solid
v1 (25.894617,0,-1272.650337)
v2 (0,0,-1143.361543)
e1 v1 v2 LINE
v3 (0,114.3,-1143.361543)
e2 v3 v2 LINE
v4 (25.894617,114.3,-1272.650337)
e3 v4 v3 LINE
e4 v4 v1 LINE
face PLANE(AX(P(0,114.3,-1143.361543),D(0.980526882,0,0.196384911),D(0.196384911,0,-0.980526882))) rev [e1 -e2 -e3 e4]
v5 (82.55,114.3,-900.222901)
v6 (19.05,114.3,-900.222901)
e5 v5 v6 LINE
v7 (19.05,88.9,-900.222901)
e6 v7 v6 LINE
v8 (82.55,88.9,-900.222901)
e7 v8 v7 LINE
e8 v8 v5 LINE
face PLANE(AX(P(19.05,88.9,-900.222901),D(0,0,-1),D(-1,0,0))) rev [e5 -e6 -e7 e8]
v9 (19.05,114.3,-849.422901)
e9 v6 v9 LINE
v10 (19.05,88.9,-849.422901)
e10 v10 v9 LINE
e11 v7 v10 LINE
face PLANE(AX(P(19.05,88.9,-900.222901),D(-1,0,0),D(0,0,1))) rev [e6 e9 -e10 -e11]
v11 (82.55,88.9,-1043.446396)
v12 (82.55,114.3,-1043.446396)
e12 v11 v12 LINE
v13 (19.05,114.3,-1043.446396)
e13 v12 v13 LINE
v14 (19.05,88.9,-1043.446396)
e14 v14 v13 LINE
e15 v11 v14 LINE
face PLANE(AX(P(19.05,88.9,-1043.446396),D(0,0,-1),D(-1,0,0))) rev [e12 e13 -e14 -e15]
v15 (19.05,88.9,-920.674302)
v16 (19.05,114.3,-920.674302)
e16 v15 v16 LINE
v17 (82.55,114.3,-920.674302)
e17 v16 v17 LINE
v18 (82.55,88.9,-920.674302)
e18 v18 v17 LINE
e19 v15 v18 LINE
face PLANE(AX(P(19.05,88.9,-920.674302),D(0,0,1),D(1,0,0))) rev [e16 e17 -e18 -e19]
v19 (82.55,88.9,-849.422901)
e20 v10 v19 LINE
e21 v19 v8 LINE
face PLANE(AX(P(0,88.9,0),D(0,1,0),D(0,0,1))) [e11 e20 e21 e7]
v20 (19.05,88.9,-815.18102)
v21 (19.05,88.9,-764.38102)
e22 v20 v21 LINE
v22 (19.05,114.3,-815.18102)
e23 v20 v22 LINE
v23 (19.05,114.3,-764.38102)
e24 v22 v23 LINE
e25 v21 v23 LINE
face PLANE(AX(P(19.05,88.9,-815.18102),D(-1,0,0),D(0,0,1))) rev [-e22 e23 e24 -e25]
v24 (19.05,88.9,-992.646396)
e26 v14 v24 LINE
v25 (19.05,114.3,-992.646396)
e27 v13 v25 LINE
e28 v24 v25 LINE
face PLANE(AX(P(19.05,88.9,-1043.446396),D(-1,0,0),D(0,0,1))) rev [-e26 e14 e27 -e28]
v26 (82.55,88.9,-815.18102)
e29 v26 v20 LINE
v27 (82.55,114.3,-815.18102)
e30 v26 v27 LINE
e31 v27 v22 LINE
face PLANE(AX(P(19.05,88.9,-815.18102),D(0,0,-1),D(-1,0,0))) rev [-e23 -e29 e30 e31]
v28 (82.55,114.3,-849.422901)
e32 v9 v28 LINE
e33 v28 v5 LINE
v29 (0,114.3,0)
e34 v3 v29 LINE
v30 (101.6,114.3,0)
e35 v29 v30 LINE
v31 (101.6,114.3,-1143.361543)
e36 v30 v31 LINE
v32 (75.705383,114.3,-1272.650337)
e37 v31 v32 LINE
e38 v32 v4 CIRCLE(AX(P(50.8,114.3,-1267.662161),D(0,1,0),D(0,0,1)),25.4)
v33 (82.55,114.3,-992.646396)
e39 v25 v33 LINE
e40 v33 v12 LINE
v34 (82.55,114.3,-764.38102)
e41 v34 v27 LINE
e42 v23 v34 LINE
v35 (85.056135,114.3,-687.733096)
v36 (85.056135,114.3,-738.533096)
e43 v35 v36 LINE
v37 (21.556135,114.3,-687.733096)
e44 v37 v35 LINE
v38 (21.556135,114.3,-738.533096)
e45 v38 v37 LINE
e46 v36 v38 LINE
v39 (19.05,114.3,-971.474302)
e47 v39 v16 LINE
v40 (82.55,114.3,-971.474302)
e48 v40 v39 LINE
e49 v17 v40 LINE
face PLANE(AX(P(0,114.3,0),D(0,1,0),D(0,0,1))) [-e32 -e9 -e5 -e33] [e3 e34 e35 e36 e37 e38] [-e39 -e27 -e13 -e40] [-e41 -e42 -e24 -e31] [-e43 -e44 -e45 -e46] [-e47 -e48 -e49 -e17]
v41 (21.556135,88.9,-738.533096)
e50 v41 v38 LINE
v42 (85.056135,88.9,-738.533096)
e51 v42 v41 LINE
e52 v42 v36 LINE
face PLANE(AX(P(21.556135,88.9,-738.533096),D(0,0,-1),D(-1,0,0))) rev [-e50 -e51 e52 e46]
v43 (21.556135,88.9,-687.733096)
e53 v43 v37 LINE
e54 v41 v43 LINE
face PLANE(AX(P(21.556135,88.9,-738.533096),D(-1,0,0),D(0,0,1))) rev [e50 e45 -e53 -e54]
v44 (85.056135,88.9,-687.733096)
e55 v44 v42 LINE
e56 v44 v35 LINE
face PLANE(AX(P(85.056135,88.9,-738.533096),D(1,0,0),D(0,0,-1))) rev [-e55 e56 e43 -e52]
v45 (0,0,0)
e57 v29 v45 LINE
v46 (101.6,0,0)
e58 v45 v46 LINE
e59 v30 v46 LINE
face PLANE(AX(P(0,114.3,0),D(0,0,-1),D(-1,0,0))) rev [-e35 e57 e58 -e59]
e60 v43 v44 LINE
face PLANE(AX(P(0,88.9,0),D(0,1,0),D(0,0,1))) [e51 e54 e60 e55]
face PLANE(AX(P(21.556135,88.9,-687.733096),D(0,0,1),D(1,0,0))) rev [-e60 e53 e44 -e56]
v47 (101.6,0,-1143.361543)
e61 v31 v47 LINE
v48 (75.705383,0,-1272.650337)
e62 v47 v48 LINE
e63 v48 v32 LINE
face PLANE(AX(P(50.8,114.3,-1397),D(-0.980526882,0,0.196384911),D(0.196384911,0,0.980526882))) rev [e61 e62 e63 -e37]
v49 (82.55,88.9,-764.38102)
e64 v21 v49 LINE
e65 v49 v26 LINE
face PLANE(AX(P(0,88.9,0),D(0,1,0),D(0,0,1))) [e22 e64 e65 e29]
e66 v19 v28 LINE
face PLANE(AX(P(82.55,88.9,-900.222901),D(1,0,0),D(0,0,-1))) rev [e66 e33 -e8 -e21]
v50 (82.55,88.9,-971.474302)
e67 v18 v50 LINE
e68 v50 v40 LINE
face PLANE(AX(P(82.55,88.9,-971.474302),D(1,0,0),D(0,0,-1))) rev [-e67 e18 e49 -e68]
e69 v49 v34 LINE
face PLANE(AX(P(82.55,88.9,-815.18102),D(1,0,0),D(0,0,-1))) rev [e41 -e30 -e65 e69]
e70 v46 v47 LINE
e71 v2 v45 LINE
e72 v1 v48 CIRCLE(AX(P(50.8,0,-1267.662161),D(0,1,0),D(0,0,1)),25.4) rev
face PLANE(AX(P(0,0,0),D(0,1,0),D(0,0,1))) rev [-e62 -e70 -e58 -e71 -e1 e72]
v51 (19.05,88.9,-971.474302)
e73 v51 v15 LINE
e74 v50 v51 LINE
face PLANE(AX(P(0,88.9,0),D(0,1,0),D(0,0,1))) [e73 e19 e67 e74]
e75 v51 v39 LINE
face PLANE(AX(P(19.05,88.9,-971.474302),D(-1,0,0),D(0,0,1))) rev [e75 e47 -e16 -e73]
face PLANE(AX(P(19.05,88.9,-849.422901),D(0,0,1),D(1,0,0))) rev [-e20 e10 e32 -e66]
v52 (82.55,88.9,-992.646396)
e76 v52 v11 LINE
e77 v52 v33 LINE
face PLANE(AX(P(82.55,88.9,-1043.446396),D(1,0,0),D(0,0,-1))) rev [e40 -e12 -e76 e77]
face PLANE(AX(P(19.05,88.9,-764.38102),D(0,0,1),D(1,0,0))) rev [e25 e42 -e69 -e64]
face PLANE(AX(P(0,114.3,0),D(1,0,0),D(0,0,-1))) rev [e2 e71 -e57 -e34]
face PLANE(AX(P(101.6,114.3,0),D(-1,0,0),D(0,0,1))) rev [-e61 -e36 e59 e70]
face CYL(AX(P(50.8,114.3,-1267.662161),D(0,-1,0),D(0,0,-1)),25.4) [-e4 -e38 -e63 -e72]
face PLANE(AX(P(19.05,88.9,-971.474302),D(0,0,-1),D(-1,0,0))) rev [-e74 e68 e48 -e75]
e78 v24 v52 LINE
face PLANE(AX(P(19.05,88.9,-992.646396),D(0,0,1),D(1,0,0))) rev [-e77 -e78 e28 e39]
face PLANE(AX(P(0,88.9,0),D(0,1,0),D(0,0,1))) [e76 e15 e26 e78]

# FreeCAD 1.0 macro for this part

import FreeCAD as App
import Part
import Sketcher
Q = App.Units.Quantity


def edges_at(feature, points):
    """Names of the edges that pass closest to the given points."""
    edges = feature.Shape.Edges
    near = lambda p: min(range(len(edges)), key=lambda i: edges[i].distToShape(Part.Vertex(*p))[0])
    return sorted({f"Edge{near(p) + 1}" for p in points})

doc = App.newDocument("Part")
body = doc.addObject("PartDesign::Body", "Body")

sketch1 = body.newObject("Sketcher::SketchObject", "Sketch")
sketch1.AttachmentSupport = (doc.getObject("XZ_Plane"), [""])
sketch1.MapMode = "FlatFace"
sketch1.addGeometry([
    Part.LineSegment(App.Vector(0, -1143, 0), App.Vector(0, 0, 0)),
    Part.LineSegment(App.Vector(0, 0, 0), App.Vector(102, 0, 0)),
    Part.LineSegment(App.Vector(102, 0, 0), App.Vector(102, -1143, 0)),
    Part.LineSegment(App.Vector(102, -1143, 0), App.Vector(51, -1397, 0)),
    Part.LineSegment(App.Vector(51, -1397, 0), App.Vector(0, -1143, 0)),
], False)
sketch1.addConstraint([
    Sketcher.Constraint("Coincident", 0, 2, 1, 1),
    Sketcher.Constraint("Coincident", 1, 2, 2, 1),
    Sketcher.Constraint("Coincident", 2, 2, 3, 1),
    Sketcher.Constraint("Coincident", 3, 2, 4, 1),
    Sketcher.Constraint("Coincident", 4, 2, 0, 1),
    Sketcher.Constraint("Vertical", 0),
    Sketcher.Constraint("Horizontal", 1),
    Sketcher.Constraint("Vertical", 2),
    Sketcher.Constraint("Coincident", 0, 2, -1, 1),
    Sketcher.Constraint("Horizontal", 2, 2, 4, 2),
    Sketcher.Constraint("Equal", 3, 4),
    Sketcher.Constraint("DistanceX", 1, 1, 1, 2, Q("4 in")),
    Sketcher.Constraint("DistanceY", 3, 2, -1, 1, Q("55 in")),
    Sketcher.Constraint("Distance", 3, Q("258.675679 mm")),
])
pad1 = body.newObject("PartDesign::Pad", "Pad")
pad1.Profile = sketch1
pad1.Length = Q("4.5 in")
pad1.Reversed = True
doc.recompute()

fillet = body.newObject("PartDesign::Fillet", "Fillet")
fillet.Base = (pad1, edges_at(pad1, [(50.8, 57.15, -1397)]))
fillet.Radius = Q("1 in")

sketch2 = body.newObject("Sketcher::SketchObject", "Sketch001")
sketch2.AttachmentSupport = (doc.getObject("XZ_Plane"), [""])
sketch2.MapMode = "FlatFace"
sketch2.AttachmentOffset = App.Placement(App.Vector(0, 0, -4.5 * 25.4), App.Rotation())
sketch2.addGeometry([
    Part.LineSegment(App.Vector(19, -971, 0), App.Vector(19, -921, 0)),
    Part.LineSegment(App.Vector(19, -921, 0), App.Vector(83, -921, 0)),
    Part.LineSegment(App.Vector(83, -921, 0), App.Vector(83, -971, 0)),
    Part.LineSegment(App.Vector(83, -971, 0), App.Vector(19, -971, 0)),
    Part.LineSegment(App.Vector(19, -1043, 0), App.Vector(19, -993, 0)),
    Part.LineSegment(App.Vector(19, -993, 0), App.Vector(83, -993, 0)),
    Part.LineSegment(App.Vector(83, -993, 0), App.Vector(83, -1043, 0)),
    Part.LineSegment(App.Vector(83, -1043, 0), App.Vector(19, -1043, 0)),
    Part.LineSegment(App.Vector(19, -900, 0), App.Vector(19, -849, 0)),
    Part.LineSegment(App.Vector(19, -849, 0), App.Vector(83, -849, 0)),
    Part.LineSegment(App.Vector(83, -849, 0), App.Vector(83, -900, 0)),
    Part.LineSegment(App.Vector(83, -900, 0), App.Vector(19, -900, 0)),
    Part.LineSegment(App.Vector(19, -815, 0), App.Vector(19, -764, 0)),
    Part.LineSegment(App.Vector(19, -764, 0), App.Vector(83, -764, 0)),
    Part.LineSegment(App.Vector(83, -764, 0), App.Vector(83, -815, 0)),
    Part.LineSegment(App.Vector(83, -815, 0), App.Vector(19, -815, 0)),
    Part.LineSegment(App.Vector(22, -739, 0), App.Vector(22, -688, 0)),
    Part.LineSegment(App.Vector(22, -688, 0), App.Vector(85, -688, 0)),
    Part.LineSegment(App.Vector(85, -688, 0), App.Vector(85, -739, 0)),
    Part.LineSegment(App.Vector(85, -739, 0), App.Vector(22, -739, 0)),
], False)
sketch2.addConstraint([
    Sketcher.Constraint("Coincident", 0, 2, 1, 1),
    Sketcher.Constraint("Coincident", 1, 2, 2, 1),
    Sketcher.Constraint("Coincident", 2, 2, 3, 1),
    Sketcher.Constraint("Coincident", 3, 2, 0, 1),
    Sketcher.Constraint("Coincident", 4, 2, 5, 1),
    Sketcher.Constraint("Coincident", 5, 2, 6, 1),
    Sketcher.Constraint("Coincident", 6, 2, 7, 1),
    Sketcher.Constraint("Coincident", 7, 2, 4, 1),
    Sketcher.Constraint("Coincident", 8, 2, 9, 1),
    Sketcher.Constraint("Coincident", 9, 2, 10, 1),
    Sketcher.Constraint("Coincident", 10, 2, 11, 1),
    Sketcher.Constraint("Coincident", 11, 2, 8, 1),
    Sketcher.Constraint("Coincident", 12, 2, 13, 1),
    Sketcher.Constraint("Coincident", 13, 2, 14, 1),
    Sketcher.Constraint("Coincident", 14, 2, 15, 1),
    Sketcher.Constraint("Coincident", 15, 2, 12, 1),
    Sketcher.Constraint("Coincident", 16, 2, 17, 1),
    Sketcher.Constraint("Coincident", 17, 2, 18, 1),
    Sketcher.Constraint("Coincident", 18, 2, 19, 1),
    Sketcher.Constraint("Coincident", 19, 2, 16, 1),
    Sketcher.Constraint("Vertical", 0),
    Sketcher.Constraint("Horizontal", 1),
    Sketcher.Constraint("Vertical", 2),
    Sketcher.Constraint("Horizontal", 3),
    Sketcher.Constraint("Vertical", 4),
    Sketcher.Constraint("Horizontal", 5),
    Sketcher.Constraint("Vertical", 6),
    Sketcher.Constraint("Horizontal", 7),
    Sketcher.Constraint("Vertical", 8),
    Sketcher.Constraint("Horizontal", 9),
    Sketcher.Constraint("Vertical", 10),
    Sketcher.Constraint("Horizontal", 11),
    Sketcher.Constraint("Vertical", 12),
    Sketcher.Constraint("Horizontal", 13),
    Sketcher.Constraint("Vertical", 14),
    Sketcher.Constraint("Horizontal", 15),
    Sketcher.Constraint("Vertical", 16),
    Sketcher.Constraint("Horizontal", 17),
    Sketcher.Constraint("Vertical", 18),
    Sketcher.Constraint("Horizontal", 19),
    Sketcher.Constraint("Vertical", 3, 2, 4, 2),
    Sketcher.Constraint("Vertical", 2, 2, 5, 2),
    Sketcher.Constraint("Vertical", 7, 2, 8, 2),
    Sketcher.Constraint("Vertical", 6, 2, 9, 2),
    Sketcher.Constraint("Vertical", 11, 2, 12, 2),
    Sketcher.Constraint("Vertical", 10, 2, 13, 2),
    Sketcher.Constraint("Equal", 15, 17),
    Sketcher.Constraint("Equal", 2, 4),
    Sketcher.Constraint("Equal", 6, 8),
    Sketcher.Constraint("Equal", 10, 12),
    Sketcher.Constraint("Equal", 14, 16),
    Sketcher.Constraint("DistanceY", 0, 1, 0, 2, Q("2 in")),
    Sketcher.Constraint("DistanceX", 1, 1, 1, 2, Q("2.5 in")),
    Sketcher.Constraint("DistanceX", -1, 1, 0, 2, Q("0.75 in")),
    Sketcher.Constraint("DistanceY", 8, 2, -1, 1, Q("849.422901 mm")),
    Sketcher.Constraint("DistanceY", 0, 2, 8, 2, Q("71.251401 mm")),
    Sketcher.Constraint("DistanceY", 12, 2, -1, 1, Q("764.38102 mm")),
    Sketcher.Constraint("DistanceY", 4, 2, -1, 1, Q("992.646396 mm")),
    Sketcher.Constraint("DistanceX", -1, 1, 16, 2, Q("21.556135 mm")),
    Sketcher.Constraint("DistanceY", 16, 2, -1, 1, Q("687.733096 mm")),
])
pocket1 = body.newObject("PartDesign::Pocket", "Pocket")
pocket1.Profile = sketch2
pocket1.Length = Q("1 in")
pocket1.Reversed = True

doc.recompute()
